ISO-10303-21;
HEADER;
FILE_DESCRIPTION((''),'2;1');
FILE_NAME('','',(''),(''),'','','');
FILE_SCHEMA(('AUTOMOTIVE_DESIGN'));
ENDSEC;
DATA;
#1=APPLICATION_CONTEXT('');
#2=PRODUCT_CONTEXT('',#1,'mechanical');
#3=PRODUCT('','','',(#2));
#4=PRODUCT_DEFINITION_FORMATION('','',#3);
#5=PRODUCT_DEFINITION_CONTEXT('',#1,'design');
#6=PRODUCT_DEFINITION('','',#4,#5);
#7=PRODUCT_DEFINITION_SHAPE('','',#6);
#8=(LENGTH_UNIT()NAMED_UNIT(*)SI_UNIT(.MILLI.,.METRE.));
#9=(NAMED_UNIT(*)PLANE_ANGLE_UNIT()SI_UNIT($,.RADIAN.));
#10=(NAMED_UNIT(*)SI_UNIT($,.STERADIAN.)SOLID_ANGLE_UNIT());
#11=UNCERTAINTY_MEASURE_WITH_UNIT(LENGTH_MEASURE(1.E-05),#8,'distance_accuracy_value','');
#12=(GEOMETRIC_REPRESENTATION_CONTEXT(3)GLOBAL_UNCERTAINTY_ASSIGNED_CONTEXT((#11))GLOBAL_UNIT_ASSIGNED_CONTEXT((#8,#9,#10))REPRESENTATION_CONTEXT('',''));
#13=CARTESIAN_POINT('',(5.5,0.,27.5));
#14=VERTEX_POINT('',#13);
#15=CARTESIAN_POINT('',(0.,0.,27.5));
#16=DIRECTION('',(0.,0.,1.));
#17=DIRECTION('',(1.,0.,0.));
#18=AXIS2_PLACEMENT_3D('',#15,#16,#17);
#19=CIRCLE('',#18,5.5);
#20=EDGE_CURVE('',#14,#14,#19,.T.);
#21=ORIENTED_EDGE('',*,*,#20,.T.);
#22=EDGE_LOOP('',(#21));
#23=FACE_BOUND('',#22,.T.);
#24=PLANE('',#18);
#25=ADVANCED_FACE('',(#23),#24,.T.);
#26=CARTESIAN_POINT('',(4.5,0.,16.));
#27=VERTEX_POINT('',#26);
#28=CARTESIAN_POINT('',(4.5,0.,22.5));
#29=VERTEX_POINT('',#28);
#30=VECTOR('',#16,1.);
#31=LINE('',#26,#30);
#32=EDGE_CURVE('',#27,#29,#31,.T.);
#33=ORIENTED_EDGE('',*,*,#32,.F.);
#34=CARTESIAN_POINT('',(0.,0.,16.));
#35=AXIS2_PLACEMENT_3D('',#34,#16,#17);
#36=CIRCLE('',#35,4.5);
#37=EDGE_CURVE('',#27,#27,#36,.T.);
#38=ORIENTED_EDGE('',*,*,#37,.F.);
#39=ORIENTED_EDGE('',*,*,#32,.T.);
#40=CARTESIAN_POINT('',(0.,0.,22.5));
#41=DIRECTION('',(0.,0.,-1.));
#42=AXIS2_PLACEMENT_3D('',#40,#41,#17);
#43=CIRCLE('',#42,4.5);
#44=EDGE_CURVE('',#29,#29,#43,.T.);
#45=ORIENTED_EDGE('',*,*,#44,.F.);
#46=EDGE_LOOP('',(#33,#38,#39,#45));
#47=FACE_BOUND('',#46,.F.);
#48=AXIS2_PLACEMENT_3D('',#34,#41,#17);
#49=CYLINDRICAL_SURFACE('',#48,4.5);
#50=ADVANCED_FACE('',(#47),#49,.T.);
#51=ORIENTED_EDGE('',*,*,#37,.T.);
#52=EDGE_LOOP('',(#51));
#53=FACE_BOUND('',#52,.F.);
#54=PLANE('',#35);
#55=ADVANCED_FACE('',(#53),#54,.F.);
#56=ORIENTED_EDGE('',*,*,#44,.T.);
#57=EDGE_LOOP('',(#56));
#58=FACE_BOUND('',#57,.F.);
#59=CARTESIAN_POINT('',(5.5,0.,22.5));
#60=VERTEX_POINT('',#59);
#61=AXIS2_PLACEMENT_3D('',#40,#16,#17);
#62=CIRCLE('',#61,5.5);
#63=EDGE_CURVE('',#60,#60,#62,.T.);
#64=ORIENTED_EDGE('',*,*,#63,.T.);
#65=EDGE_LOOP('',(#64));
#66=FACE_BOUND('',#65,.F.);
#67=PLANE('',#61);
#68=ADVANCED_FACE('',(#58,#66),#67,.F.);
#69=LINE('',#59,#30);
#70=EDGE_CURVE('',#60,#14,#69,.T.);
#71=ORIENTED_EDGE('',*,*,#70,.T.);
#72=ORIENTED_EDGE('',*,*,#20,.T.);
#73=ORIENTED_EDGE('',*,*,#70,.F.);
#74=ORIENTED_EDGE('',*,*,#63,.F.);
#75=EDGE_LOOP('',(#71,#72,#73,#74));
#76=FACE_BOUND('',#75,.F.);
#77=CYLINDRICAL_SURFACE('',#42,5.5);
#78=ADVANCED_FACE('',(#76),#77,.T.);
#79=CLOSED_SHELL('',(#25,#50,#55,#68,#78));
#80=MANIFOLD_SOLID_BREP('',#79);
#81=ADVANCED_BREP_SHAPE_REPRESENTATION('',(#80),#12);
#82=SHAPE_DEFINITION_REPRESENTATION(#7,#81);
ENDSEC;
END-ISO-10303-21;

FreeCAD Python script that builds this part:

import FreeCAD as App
import Part
import Sketcher
from FreeCAD import Vector
Q = App.Units.Quantity

doc = App.newDocument("Part")
params = doc.addObject("Spreadsheet::Sheet", "Params")
for row, (alias, value) in enumerate([
    ("sketch1_diameter", "11 mm"),
    ("pad1_length", "5 mm"),
    ("sketch2_diameter", "9 mm"),
    ("pad2_length", "6.6 mm"),
], start=1):
    params.set(f"A{row}", alias)
    params.set(f"B{row}", "=" + value)
    params.setAlias(f"B{row}", alias)

body = doc.addObject("PartDesign::Body", "Body")

# Sketch on XY plane
sketch1 = doc.addObject("Sketcher::SketchObject", "Sketch")
body.addObject(sketch1)
sketch1.AttachmentSupport = (doc.XY_Plane, [""])
sketch1.MapMode = "FlatFace"
sketch1.AttachmentOffset = App.Placement(Vector(0, 0, -2.5), App.Rotation())
sketch1.addGeometry(Part.Circle(Vector(0, 0, 0), Vector(0, 0, 1), 6), False)
sketch1.addConstraint([
    Sketcher.Constraint("Coincident", 0, 3, -1, 1),
    Sketcher.Constraint("Diameter", 0, Q("11 mm")),
])
sketch1.setExpression("Constraints[1]", "Params.sketch1_diameter")
pad1 = doc.addObject("PartDesign::Pad", "Pad")
body.addObject(pad1)
pad1.Profile = sketch1
pad1.setExpression("Length", "Params.pad1_length")
body2 = doc.addObject("PartDesign::Body", "Body001")

# Sketch on XY plane
sketch2 = doc.addObject("Sketcher::SketchObject", "Sketch001")
body2.addObject(sketch2)
sketch2.AttachmentSupport = (doc.getObject("XY_Plane001"), [""])
sketch2.MapMode = "FlatFace"
sketch2.AttachmentOffset = App.Placement(Vector(0, 0, -9), App.Rotation())
sketch2.addGeometry(Part.Circle(Vector(0, 0, 0), Vector(0, 0, 1), 4.5), False)
sketch2.addConstraint([
    Sketcher.Constraint("Coincident", 0, 3, -1, 1),
    Sketcher.Constraint("Diameter", 0, Q("9 mm")),
])
sketch2.setExpression("Constraints[1]", "Params.sketch2_diameter")
pad2 = doc.addObject("PartDesign::Pad", "Pad001")
body2.addObject(pad2)
pad2.Profile = sketch2
pad2.setExpression("Length", "Params.pad2_length")
doc.recompute()

boolean = doc.addObject("PartDesign::Boolean", "Boolean")
body2.addObject(boolean)
boolean.Type = "Fuse"
boolean.addObjects([body])
body3 = doc.addObject("PartDesign::Body", "Body002")
doc.recompute()

body2.Placement = App.Placement(Vector(0, 0, 25), App.Rotation(Vector(0, 0, 1), 0))
boolean2 = doc.addObject("PartDesign::Boolean", "Boolean001")
body3.addObject(boolean2)
boolean2.Type = "Fuse"
boolean2.addObjects([body2])

doc.recompute()
